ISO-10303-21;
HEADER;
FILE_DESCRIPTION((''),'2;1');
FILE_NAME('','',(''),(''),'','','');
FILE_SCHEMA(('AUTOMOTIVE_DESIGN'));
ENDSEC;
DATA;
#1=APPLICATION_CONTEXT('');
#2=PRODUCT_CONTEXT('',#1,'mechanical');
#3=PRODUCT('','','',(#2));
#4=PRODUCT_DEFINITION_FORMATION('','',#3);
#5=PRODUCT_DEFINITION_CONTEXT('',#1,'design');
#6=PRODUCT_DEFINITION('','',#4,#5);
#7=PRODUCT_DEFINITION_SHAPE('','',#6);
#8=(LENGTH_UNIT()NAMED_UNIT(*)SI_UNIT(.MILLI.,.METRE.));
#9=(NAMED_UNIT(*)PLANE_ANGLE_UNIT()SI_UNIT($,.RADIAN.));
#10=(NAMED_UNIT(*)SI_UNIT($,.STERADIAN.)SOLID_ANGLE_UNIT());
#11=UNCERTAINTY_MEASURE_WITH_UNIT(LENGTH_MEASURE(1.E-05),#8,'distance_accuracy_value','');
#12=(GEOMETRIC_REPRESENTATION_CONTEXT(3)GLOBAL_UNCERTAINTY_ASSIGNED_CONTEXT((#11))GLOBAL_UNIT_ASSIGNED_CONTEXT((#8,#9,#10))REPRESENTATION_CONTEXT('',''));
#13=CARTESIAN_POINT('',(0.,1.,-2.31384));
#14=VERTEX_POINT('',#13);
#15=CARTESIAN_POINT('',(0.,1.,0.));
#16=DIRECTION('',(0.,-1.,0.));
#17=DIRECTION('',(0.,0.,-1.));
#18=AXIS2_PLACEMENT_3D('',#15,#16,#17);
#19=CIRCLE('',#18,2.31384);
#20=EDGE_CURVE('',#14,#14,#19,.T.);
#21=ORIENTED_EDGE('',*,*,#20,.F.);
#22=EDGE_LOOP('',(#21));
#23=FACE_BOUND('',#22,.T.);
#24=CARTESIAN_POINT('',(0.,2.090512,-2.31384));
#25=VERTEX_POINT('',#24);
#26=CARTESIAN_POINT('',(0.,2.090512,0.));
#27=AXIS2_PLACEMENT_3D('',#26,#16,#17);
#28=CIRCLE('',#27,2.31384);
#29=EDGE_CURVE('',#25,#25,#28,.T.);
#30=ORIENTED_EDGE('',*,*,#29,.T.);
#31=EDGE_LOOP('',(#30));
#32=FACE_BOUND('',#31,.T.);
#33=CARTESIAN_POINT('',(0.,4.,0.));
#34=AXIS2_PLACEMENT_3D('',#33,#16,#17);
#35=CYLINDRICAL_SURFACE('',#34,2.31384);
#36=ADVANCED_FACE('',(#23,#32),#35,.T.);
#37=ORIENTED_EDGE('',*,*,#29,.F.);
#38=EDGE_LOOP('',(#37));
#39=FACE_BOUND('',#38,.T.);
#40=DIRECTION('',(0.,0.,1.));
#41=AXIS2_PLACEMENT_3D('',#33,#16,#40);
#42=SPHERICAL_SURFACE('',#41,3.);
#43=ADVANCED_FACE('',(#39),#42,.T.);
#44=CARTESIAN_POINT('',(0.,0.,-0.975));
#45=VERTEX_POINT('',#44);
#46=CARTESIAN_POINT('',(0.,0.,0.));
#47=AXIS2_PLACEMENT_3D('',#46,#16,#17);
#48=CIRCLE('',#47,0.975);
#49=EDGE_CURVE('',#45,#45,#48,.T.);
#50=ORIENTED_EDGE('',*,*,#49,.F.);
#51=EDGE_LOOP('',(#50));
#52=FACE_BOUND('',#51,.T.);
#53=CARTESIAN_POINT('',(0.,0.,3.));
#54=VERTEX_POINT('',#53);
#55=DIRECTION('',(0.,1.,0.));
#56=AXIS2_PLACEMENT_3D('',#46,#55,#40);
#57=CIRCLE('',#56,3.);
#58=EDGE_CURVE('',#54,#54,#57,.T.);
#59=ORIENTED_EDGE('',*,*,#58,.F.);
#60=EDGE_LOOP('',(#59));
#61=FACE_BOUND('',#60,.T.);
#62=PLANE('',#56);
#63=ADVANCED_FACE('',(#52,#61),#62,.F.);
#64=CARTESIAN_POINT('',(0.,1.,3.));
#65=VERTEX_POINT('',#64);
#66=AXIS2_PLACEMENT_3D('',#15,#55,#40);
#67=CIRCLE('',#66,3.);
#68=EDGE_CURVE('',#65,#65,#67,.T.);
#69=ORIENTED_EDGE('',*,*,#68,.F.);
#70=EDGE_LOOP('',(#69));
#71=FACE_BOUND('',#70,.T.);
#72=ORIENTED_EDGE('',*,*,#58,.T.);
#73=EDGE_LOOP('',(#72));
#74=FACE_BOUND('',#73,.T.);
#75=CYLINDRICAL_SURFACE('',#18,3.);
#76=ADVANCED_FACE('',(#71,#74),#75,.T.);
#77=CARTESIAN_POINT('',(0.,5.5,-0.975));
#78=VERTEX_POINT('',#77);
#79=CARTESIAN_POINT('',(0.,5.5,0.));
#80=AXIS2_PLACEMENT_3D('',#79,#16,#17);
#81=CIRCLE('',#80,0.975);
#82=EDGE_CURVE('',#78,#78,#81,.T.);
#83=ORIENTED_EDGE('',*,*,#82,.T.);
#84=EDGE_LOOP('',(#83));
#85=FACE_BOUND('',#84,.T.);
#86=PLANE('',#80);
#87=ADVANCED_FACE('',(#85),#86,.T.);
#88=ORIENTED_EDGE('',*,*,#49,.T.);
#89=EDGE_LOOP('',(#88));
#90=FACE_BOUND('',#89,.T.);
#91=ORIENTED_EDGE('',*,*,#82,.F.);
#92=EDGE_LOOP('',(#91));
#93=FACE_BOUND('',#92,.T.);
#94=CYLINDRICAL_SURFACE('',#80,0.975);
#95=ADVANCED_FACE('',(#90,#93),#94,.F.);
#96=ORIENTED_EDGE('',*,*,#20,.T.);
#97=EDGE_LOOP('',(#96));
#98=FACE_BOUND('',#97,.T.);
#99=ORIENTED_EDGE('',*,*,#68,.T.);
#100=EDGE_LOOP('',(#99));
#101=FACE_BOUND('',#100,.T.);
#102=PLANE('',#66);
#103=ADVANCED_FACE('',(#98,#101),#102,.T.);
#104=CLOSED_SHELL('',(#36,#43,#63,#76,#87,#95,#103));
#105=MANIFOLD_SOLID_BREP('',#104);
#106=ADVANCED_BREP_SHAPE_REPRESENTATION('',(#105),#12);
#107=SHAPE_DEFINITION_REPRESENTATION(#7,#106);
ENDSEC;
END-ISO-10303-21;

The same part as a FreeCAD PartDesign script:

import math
import FreeCAD as App
import Part
import Sketcher

V = App.Vector

doc = App.newDocument("Part")
body = doc.addObject("PartDesign::Body", "Body")

# Sketch on XZ plane
sketch1 = doc.addObject("Sketcher::SketchObject", "Sketch")
body.addObject(sketch1)
sketch1.AttachmentSupport = (doc.XZ_Plane, [""])
sketch1.MapMode = "FlatFace"
sketch1.addGeometry(Part.Circle(V(0, 0, 0), V(0, 0, 1), 3), False)
sketch1.addConstraint([
    Sketcher.Constraint("Coincident", 0, 3, -1, 1),
    Sketcher.Constraint("Diameter", 0, 6.0),
])
pad1 = doc.addObject("PartDesign::Pad", "Pad")
body.addObject(pad1)
pad1.Profile = sketch1
pad1.Length = 1
pad1.Reversed = True

# Sketch on YZ plane
sketch2 = doc.addObject("Sketcher::SketchObject", "Sketch001")
body.addObject(sketch2)
sketch2.AttachmentSupport = (doc.YZ_Plane, [""])
sketch2.MapMode = "FlatFace"
sketch2.addGeometry([
    Part.LineSegment(V(1, 0, 0), V(7, 0, 0)),  # 0
    Part.ArcOfCircle(Part.Circle(V(4, 0, 0), V(0, 0, 1), 3), math.radians(0), math.radians(90)),  # 1
    Part.ArcOfCircle(Part.Circle(V(4, 0, 0), V(0, 0, 1), 3), math.radians(90), math.radians(130)),  # 2
    Part.LineSegment(V(2.1, 2.3, 0), V(1, 2.3, 0)),  # 3
    Part.LineSegment(V(1, 2.3, 0), V(1, 0, 0)),  # 4
], False)
sketch2.addConstraint([
    Sketcher.Constraint("Coincident", 0, 2, 1, 1),
    Sketcher.Constraint("Tangent", 1, 2, 2, 1),
    Sketcher.Constraint("Coincident", 2, 2, 3, 1),
    Sketcher.Constraint("Coincident", 3, 2, 4, 1),
    Sketcher.Constraint("Coincident", 4, 2, 0, 1),
    Sketcher.Constraint("Horizontal", 0),
    Sketcher.Constraint("Horizontal", 3),
    Sketcher.Constraint("Vertical", 4),
    Sketcher.Constraint("Equal", 1, 2),
    Sketcher.Constraint("PointOnObject", 1, 3, -1),
    Sketcher.Constraint("PointOnObject", 0, 2, -1),
    Sketcher.Constraint("Vertical", 2, 3, 1, 2),
    Sketcher.Constraint("Radius", 1, 3.0),
    Sketcher.Constraint("DistanceX", 0, 1, 0, 2, 6.0),
    Sketcher.Constraint("DistanceX", -1, 1, 1, 3, 4.0),
    Sketcher.Constraint("DistanceX", 3, 2, 3, 1, 1.090512),
])
revolution = doc.addObject("PartDesign::Revolution", "Revolution")
body.addObject(revolution)
revolution.Profile = sketch2
revolution.ReferenceAxis = (sketch2, ["H_Axis"])
revolution.Angle = 360

# Sketch on XZ plane
sketch3 = doc.addObject("Sketcher::SketchObject", "Sketch002")
body.addObject(sketch3)
sketch3.AttachmentSupport = (doc.XZ_Plane, [""])
sketch3.MapMode = "FlatFace"
sketch3.addGeometry(Part.Circle(V(0, 0, 0), V(0, 0, 1), 1), False)
sketch3.addConstraint([
    Sketcher.Constraint("Coincident", 0, 3, -1, 1),
    Sketcher.Constraint("Diameter", 0, 1.95),
])
pocket1 = doc.addObject("PartDesign::Pocket", "Pocket")
body.addObject(pocket1)
pocket1.Profile = sketch3
pocket1.Length = 5.5

doc.recompute()
